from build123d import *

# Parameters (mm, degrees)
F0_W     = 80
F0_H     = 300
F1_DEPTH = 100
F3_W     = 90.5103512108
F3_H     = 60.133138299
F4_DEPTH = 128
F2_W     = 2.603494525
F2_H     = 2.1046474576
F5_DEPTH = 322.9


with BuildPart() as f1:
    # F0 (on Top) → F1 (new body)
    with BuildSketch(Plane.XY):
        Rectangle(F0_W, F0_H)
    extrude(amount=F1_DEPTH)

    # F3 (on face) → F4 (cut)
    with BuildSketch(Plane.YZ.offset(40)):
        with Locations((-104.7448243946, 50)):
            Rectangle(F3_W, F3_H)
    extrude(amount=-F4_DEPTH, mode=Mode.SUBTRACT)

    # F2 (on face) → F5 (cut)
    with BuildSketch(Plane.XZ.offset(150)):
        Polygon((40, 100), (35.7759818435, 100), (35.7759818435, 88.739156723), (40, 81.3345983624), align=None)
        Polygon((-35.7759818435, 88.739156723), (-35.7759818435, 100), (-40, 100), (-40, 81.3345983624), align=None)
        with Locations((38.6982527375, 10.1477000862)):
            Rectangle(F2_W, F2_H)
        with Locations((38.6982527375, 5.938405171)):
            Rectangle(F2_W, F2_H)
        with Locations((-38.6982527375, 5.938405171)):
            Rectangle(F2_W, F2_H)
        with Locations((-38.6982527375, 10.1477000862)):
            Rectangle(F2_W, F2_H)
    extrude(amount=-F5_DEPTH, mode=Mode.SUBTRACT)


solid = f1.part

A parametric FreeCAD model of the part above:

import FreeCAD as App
import Part
import Sketcher
Q = App.Units.Quantity


def add_polygon(sketch, points):
    """Adds a closed chain of lines whose ends are joined by coincident constraints."""
    first, n = sketch.GeometryCount, len(points)
    for a, b in zip(points, points[1:] + points[:1]):
        sketch.addGeometry(Part.LineSegment(App.Vector(*a, 0), App.Vector(*b, 0)), False)
    for i in range(n):
        sketch.addConstraint(Sketcher.Constraint("Coincident", first + i, 2, first + (i + 1) % n, 1))

doc = App.newDocument("Part")
body = doc.addObject("PartDesign::Body", "Body")

# Sketch on XY plane
sketch1 = doc.addObject("Sketcher::SketchObject", "Sketch")
body.addObject(sketch1)
sketch1.AttachmentSupport = (doc.XY_Plane, [""])
sketch1.MapMode = "FlatFace"
add_polygon(sketch1, [(-40, 150), (-40, -150), (40, -150), (40, 150)])  # lines 0-3
sketch1.addConstraint([
    Sketcher.Constraint("Vertical", 0),
    Sketcher.Constraint("Horizontal", 1),
    Sketcher.Constraint("Vertical", 2),
    Sketcher.Constraint("Horizontal", 3),
    Sketcher.Constraint("Symmetric", 0, 2, 2, 2, -1, 1),
    Sketcher.Constraint("DistanceX", 1, 1, 1, 2, Q("80 mm")),
    Sketcher.Constraint("DistanceY", 0, 2, 0, 1, Q("300 mm")),
])
pad1 = doc.addObject("PartDesign::Pad", "Pad")
body.addObject(pad1)
pad1.Profile = sketch1
pad1.Length = 100

# Sketch on YZ plane
sketch2 = doc.addObject("Sketcher::SketchObject", "Sketch001")
body.addObject(sketch2)
sketch2.AttachmentSupport = (doc.YZ_Plane, [""])
sketch2.MapMode = "FlatFace"
sketch2.AttachmentOffset = App.Placement(App.Vector(0, 0, 40), App.Rotation())
add_polygon(sketch2, [(-150, 80.066569), (-150, 19.933431), (-59.489649, 19.933431), (-59.489649, 80.066569)])  # lines 0-3
sketch2.addConstraint([
    Sketcher.Constraint("Vertical", 0),
    Sketcher.Constraint("Horizontal", 1),
    Sketcher.Constraint("Vertical", 2),
    Sketcher.Constraint("Horizontal", 3),
    Sketcher.Constraint("DistanceX", 0, 2, -1, 1, Q("150 mm")),
    Sketcher.Constraint("DistanceX", 1, 1, 1, 2, Q("90.510351 mm")),
    Sketcher.Constraint("DistanceY", 0, 2, 0, 1, Q("60.133138 mm")),
    Sketcher.Constraint("DistanceY", -1, 1, 0, 2, Q("19.933431 mm")),
])
pocket1 = doc.addObject("PartDesign::Pocket", "Pocket")
body.addObject(pocket1)
pocket1.Profile = sketch2
pocket1.Length = 128

# Sketch on XZ plane
sketch3 = doc.addObject("Sketcher::SketchObject", "Sketch002")
body.addObject(sketch3)
sketch3.AttachmentSupport = (doc.XZ_Plane, [""])
sketch3.MapMode = "FlatFace"
sketch3.AttachmentOffset = App.Placement(App.Vector(0, 0, 150), App.Rotation())
add_polygon(sketch3, [(40, 100), (35.775982, 100), (35.775982, 88.739157), (40, 81.334598)])  # lines 0-3
add_polygon(sketch3, [(-35.775982, 88.739157), (-35.775982, 100), (-40, 100), (-40, 81.334598)])  # lines 4-7
add_polygon(sketch3, [(37.396505, 11.200024), (37.396505, 9.095376), (40, 9.095376), (40, 11.200024)])  # lines 8-11
add_polygon(sketch3, [(37.396505, 6.990729), (37.396505, 4.886081), (40, 4.886081), (40, 6.990729)])  # lines 12-15
add_polygon(sketch3, [(-40, 6.990729), (-40, 4.886081), (-37.396505, 4.886081), (-37.396505, 6.990729)])  # lines 16-19
add_polygon(sketch3, [(-40, 11.200024), (-40, 9.095376), (-37.396505, 9.095376), (-37.396505, 11.200024)])  # lines 20-23
sketch3.addConstraint([
    Sketcher.Constraint("Horizontal", 0),
    Sketcher.Constraint("Vertical", 1),
    Sketcher.Constraint("Vertical", 3),
    Sketcher.Constraint("Vertical", 4),
    Sketcher.Constraint("Horizontal", 5),
    Sketcher.Constraint("Vertical", 6),
    Sketcher.Constraint("Vertical", 8),
    Sketcher.Constraint("Horizontal", 9),
    Sketcher.Constraint("Vertical", 10),
    Sketcher.Constraint("Horizontal", 11),
    Sketcher.Constraint("Vertical", 12),
    Sketcher.Constraint("Horizontal", 13),
    Sketcher.Constraint("Vertical", 14),
    Sketcher.Constraint("Horizontal", 15),
    Sketcher.Constraint("Vertical", 16),
    Sketcher.Constraint("Horizontal", 17),
    Sketcher.Constraint("Vertical", 18),
    Sketcher.Constraint("Horizontal", 19),
    Sketcher.Constraint("Vertical", 20),
    Sketcher.Constraint("Horizontal", 21),
    Sketcher.Constraint("Vertical", 22),
    Sketcher.Constraint("Horizontal", 23),
    Sketcher.Constraint("Symmetric", 0, 2, 4, 2, -2),
    Sketcher.Constraint("Symmetric", 2, 2, 6, 2, -2),
    Sketcher.Constraint("Symmetric", 13, 2, 16, 2, -2),
    Sketcher.Constraint("Symmetric", 15, 2, 18, 2, -2),
    Sketcher.Constraint("Symmetric", 9, 2, 20, 2, -2),
    Sketcher.Constraint("Symmetric", 11, 2, 22, 2, -2),
    Sketcher.Constraint("Horizontal", 1, 2, 7, 2),
    Sketcher.Constraint("Vertical", 3, 2, 9, 2),
    Sketcher.Constraint("Vertical", 11, 2, 12, 2),
    Sketcher.Constraint("Vertical", 10, 2, 13, 2),
    Sketcher.Constraint("Equal", 10, 12),
    Sketcher.Constraint("DistanceY", -1, 1, 0, 2, Q("100 mm")),
    Sketcher.Constraint("DistanceX", -1, 1, 2, 2, Q("40 mm")),
    Sketcher.Constraint("DistanceY", 3, 1, 3, 2, Q("18.665402 mm")),
    Sketcher.Constraint("DistanceX", 0, 2, 0, 1, Q("4.224018 mm")),
    Sketcher.Constraint("Distance", 2, Q("8.524659 mm")),
    Sketcher.Constraint("DistanceX", 9, 1, 9, 2, Q("2.603495 mm")),
    Sketcher.Constraint("DistanceY", 8, 2, 8, 1, Q("2.104647 mm")),
    Sketcher.Constraint("DistanceY", -1, 1, 12, 2, Q("4.886081 mm")),
    Sketcher.Constraint("DistanceY", 8, 2, 1, 2, Q("79.64378 mm")),
])
pocket2 = doc.addObject("PartDesign::Pocket", "Pocket001")
body.addObject(pocket2)
pocket2.Profile = sketch3
pocket2.Length = 322.9

doc.recompute()
